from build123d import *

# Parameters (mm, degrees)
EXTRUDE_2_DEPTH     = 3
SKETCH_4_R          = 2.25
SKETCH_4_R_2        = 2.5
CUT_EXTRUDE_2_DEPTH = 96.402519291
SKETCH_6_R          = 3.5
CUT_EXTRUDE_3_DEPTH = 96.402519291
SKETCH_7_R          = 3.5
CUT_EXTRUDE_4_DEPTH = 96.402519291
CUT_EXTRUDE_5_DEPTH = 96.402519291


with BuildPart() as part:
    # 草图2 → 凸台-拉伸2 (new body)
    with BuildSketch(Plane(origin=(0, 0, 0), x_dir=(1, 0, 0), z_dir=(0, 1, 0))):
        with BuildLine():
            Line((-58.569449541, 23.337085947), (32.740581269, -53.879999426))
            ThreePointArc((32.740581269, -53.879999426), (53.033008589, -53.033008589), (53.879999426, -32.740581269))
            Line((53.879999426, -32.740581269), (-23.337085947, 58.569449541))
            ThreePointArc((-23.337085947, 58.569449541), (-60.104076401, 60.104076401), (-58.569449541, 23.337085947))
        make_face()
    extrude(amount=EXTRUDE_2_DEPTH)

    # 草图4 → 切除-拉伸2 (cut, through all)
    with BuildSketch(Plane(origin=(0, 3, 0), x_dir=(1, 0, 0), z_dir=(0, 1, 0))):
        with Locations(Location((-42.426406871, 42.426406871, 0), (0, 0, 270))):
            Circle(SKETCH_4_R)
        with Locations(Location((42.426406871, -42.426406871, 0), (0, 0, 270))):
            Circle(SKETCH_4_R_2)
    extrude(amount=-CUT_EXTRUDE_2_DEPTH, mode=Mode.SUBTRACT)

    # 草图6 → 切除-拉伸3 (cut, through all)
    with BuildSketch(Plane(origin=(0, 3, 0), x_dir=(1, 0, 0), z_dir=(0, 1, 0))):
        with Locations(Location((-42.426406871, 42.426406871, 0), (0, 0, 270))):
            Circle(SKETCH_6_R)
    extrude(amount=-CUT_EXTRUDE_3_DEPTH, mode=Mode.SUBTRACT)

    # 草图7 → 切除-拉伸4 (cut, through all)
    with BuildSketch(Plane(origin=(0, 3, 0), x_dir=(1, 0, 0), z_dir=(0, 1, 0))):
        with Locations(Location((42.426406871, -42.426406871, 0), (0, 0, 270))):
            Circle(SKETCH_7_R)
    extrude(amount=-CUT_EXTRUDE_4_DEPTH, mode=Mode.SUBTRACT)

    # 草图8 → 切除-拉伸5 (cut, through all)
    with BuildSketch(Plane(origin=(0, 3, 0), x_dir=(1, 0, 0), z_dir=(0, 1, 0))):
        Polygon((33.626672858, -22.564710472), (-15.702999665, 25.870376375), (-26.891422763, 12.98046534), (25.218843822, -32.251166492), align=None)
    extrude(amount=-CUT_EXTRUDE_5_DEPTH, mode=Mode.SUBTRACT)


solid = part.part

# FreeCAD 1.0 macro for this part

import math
import FreeCAD as App
import Part
import Sketcher

V = App.Vector


def add_polygon(sketch, points):
    """Adds a closed chain of lines whose ends are joined by coincident constraints."""
    first, n = sketch.GeometryCount, len(points)
    for a, b in zip(points, points[1:] + points[:1]):
        sketch.addGeometry(Part.LineSegment(App.Vector(*a, 0), App.Vector(*b, 0)), False)
    for i in range(n):
        sketch.addConstraint(Sketcher.Constraint("Coincident", first + i, 2, first + (i + 1) % n, 1))

doc = App.newDocument("Part")
body = doc.addObject("PartDesign::Body", "Body")

sketch1 = body.newObject("Sketcher::SketchObject", "Sketch")
sketch1.AttachmentSupport = (doc.getObject("XZ_Plane"), [""])
sketch1.MapMode = "FlatFace"
sketch1.addGeometry([
    Part.LineSegment(V(-58.56945, -23.337086, 0), V(32.740581, 53.879999, 0)),
    Part.ArcOfCircle(Part.Circle(V(42.426407, 42.426407, 0), V(0, 0, 1), 15), math.radians(-40.219808), math.radians(130.219808)),
    Part.LineSegment(V(53.879999, 32.740581, 0), V(-23.337086, -58.56945, 0)),
    Part.ArcOfCircle(Part.Circle(V(-42.426407, -42.426407, 0), V(0, 0, 1), 25), math.radians(130.219808), math.radians(319.780192)),
], False)
sketch1.addConstraint([
    Sketcher.Constraint("Tangent", 0, 2, 1, 2),
    Sketcher.Constraint("Tangent", 1, 1, 2, 1),
    Sketcher.Constraint("Tangent", 2, 2, 3, 2),
    Sketcher.Constraint("Tangent", 3, 1, 0, 1),
    Sketcher.Constraint("Symmetric", 1, 3, 3, 3, -1, 1),
    Sketcher.Constraint("Radius", 1, 15.0),
    Sketcher.Constraint("Radius", 3, 25.0),
    Sketcher.Constraint("DistanceY", -1, 1, 0, 2, 53.879999),
    Sketcher.Constraint("DistanceX", -1, 1, 1, 1, 53.879999),
])
pad1 = body.newObject("PartDesign::Pad", "Pad")
pad1.Profile = sketch1
pad1.Length = 3
pad1.Reversed = True

sketch2 = body.newObject("Sketcher::SketchObject", "Sketch001")
sketch2.AttachmentSupport = (doc.getObject("XZ_Plane"), [""])
sketch2.MapMode = "FlatFace"
sketch2.AttachmentOffset = App.Placement(V(0, 0, -3), App.Rotation())
sketch2.addGeometry([
    Part.Circle(V(-42.426407, -42.426407, 0), V(0, 0, 1), 2.25),
    Part.Circle(V(42.426407, 42.426407, 0), V(0, 0, 1), 2.5),
], False)
sketch2.addConstraint([
    Sketcher.Constraint("Symmetric", 0, 3, 1, 3, -1, 1),
    Sketcher.Constraint("Diameter", 1, 5.0),
    Sketcher.Constraint("Diameter", 0, 4.5),
    Sketcher.Constraint("DistanceX", 0, 3, -1, 1, 42.426407),
    Sketcher.Constraint("DistanceY", 0, 3, -1, 1, 42.426407),
])
pocket1 = body.newObject("PartDesign::Pocket", "Pocket")
pocket1.Profile = sketch2
pocket1.Type = "ThroughAll"
pocket1.Reversed = True

sketch3 = body.newObject("Sketcher::SketchObject", "Sketch002")
sketch3.AttachmentSupport = (doc.getObject("XZ_Plane"), [""])
sketch3.MapMode = "FlatFace"
sketch3.AttachmentOffset = App.Placement(V(0, 0, -3), App.Rotation())
sketch3.addGeometry(Part.Circle(V(-42.426407, -42.426407, 0), V(0, 0, 1), 3.5), False)
sketch3.addConstraint([
    Sketcher.Constraint("Diameter", 0, 7.0),
    Sketcher.Constraint("DistanceX", 0, 3, -1, 1, 42.426407),
    Sketcher.Constraint("DistanceY", 0, 3, -1, 1, 42.426407),
])
pocket2 = body.newObject("PartDesign::Pocket", "Pocket001")
pocket2.Profile = sketch3
pocket2.Type = "ThroughAll"
pocket2.Reversed = True

sketch4 = body.newObject("Sketcher::SketchObject", "Sketch003")
sketch4.AttachmentSupport = (doc.getObject("XZ_Plane"), [""])
sketch4.MapMode = "FlatFace"
sketch4.AttachmentOffset = App.Placement(V(0, 0, -3), App.Rotation())
sketch4.addGeometry(Part.Circle(V(42.426407, 42.426407, 0), V(0, 0, 1), 3.5), False)
sketch4.addConstraint([
    Sketcher.Constraint("Diameter", 0, 7.0),
    Sketcher.Constraint("DistanceX", -1, 1, 0, 3, 42.426407),
    Sketcher.Constraint("DistanceY", -1, 1, 0, 3, 42.426407),
])
pocket3 = body.newObject("PartDesign::Pocket", "Pocket002")
pocket3.Profile = sketch4
pocket3.Type = "ThroughAll"
pocket3.Reversed = True

sketch5 = body.newObject("Sketcher::SketchObject", "Sketch004")
sketch5.AttachmentSupport = (doc.getObject("XZ_Plane"), [""])
sketch5.MapMode = "FlatFace"
sketch5.AttachmentOffset = App.Placement(V(0, 0, -3), App.Rotation())
add_polygon(sketch5, [(33.626673, 22.56471), (-15.703, -25.870376), (-26.891423, -12.980465), (25.218844, 32.251166)])
sketch5.addConstraint([
    Sketcher.Constraint("Perpendicular", 1, 2),
    Sketcher.Constraint("Perpendicular", 2, 3),
    Sketcher.Constraint("DistanceX", 0, 2, -1, 1, 15.703),
    Sketcher.Constraint("Distance", 0, 69.133018),
    Sketcher.Constraint("Distance", 1, 17.06841),
    Sketcher.Constraint("DistanceY", -1, 1, 3, 2, 22.56471),
    Sketcher.Constraint("DistanceY", 0, 2, 1, 2, 12.889911),
    Sketcher.Constraint("DistanceY", 1, 2, 2, 2, 45.231632),
])
pocket4 = body.newObject("PartDesign::Pocket", "Pocket003")
pocket4.Profile = sketch5
pocket4.Type = "ThroughAll"
pocket4.Reversed = True

doc.recompute()
